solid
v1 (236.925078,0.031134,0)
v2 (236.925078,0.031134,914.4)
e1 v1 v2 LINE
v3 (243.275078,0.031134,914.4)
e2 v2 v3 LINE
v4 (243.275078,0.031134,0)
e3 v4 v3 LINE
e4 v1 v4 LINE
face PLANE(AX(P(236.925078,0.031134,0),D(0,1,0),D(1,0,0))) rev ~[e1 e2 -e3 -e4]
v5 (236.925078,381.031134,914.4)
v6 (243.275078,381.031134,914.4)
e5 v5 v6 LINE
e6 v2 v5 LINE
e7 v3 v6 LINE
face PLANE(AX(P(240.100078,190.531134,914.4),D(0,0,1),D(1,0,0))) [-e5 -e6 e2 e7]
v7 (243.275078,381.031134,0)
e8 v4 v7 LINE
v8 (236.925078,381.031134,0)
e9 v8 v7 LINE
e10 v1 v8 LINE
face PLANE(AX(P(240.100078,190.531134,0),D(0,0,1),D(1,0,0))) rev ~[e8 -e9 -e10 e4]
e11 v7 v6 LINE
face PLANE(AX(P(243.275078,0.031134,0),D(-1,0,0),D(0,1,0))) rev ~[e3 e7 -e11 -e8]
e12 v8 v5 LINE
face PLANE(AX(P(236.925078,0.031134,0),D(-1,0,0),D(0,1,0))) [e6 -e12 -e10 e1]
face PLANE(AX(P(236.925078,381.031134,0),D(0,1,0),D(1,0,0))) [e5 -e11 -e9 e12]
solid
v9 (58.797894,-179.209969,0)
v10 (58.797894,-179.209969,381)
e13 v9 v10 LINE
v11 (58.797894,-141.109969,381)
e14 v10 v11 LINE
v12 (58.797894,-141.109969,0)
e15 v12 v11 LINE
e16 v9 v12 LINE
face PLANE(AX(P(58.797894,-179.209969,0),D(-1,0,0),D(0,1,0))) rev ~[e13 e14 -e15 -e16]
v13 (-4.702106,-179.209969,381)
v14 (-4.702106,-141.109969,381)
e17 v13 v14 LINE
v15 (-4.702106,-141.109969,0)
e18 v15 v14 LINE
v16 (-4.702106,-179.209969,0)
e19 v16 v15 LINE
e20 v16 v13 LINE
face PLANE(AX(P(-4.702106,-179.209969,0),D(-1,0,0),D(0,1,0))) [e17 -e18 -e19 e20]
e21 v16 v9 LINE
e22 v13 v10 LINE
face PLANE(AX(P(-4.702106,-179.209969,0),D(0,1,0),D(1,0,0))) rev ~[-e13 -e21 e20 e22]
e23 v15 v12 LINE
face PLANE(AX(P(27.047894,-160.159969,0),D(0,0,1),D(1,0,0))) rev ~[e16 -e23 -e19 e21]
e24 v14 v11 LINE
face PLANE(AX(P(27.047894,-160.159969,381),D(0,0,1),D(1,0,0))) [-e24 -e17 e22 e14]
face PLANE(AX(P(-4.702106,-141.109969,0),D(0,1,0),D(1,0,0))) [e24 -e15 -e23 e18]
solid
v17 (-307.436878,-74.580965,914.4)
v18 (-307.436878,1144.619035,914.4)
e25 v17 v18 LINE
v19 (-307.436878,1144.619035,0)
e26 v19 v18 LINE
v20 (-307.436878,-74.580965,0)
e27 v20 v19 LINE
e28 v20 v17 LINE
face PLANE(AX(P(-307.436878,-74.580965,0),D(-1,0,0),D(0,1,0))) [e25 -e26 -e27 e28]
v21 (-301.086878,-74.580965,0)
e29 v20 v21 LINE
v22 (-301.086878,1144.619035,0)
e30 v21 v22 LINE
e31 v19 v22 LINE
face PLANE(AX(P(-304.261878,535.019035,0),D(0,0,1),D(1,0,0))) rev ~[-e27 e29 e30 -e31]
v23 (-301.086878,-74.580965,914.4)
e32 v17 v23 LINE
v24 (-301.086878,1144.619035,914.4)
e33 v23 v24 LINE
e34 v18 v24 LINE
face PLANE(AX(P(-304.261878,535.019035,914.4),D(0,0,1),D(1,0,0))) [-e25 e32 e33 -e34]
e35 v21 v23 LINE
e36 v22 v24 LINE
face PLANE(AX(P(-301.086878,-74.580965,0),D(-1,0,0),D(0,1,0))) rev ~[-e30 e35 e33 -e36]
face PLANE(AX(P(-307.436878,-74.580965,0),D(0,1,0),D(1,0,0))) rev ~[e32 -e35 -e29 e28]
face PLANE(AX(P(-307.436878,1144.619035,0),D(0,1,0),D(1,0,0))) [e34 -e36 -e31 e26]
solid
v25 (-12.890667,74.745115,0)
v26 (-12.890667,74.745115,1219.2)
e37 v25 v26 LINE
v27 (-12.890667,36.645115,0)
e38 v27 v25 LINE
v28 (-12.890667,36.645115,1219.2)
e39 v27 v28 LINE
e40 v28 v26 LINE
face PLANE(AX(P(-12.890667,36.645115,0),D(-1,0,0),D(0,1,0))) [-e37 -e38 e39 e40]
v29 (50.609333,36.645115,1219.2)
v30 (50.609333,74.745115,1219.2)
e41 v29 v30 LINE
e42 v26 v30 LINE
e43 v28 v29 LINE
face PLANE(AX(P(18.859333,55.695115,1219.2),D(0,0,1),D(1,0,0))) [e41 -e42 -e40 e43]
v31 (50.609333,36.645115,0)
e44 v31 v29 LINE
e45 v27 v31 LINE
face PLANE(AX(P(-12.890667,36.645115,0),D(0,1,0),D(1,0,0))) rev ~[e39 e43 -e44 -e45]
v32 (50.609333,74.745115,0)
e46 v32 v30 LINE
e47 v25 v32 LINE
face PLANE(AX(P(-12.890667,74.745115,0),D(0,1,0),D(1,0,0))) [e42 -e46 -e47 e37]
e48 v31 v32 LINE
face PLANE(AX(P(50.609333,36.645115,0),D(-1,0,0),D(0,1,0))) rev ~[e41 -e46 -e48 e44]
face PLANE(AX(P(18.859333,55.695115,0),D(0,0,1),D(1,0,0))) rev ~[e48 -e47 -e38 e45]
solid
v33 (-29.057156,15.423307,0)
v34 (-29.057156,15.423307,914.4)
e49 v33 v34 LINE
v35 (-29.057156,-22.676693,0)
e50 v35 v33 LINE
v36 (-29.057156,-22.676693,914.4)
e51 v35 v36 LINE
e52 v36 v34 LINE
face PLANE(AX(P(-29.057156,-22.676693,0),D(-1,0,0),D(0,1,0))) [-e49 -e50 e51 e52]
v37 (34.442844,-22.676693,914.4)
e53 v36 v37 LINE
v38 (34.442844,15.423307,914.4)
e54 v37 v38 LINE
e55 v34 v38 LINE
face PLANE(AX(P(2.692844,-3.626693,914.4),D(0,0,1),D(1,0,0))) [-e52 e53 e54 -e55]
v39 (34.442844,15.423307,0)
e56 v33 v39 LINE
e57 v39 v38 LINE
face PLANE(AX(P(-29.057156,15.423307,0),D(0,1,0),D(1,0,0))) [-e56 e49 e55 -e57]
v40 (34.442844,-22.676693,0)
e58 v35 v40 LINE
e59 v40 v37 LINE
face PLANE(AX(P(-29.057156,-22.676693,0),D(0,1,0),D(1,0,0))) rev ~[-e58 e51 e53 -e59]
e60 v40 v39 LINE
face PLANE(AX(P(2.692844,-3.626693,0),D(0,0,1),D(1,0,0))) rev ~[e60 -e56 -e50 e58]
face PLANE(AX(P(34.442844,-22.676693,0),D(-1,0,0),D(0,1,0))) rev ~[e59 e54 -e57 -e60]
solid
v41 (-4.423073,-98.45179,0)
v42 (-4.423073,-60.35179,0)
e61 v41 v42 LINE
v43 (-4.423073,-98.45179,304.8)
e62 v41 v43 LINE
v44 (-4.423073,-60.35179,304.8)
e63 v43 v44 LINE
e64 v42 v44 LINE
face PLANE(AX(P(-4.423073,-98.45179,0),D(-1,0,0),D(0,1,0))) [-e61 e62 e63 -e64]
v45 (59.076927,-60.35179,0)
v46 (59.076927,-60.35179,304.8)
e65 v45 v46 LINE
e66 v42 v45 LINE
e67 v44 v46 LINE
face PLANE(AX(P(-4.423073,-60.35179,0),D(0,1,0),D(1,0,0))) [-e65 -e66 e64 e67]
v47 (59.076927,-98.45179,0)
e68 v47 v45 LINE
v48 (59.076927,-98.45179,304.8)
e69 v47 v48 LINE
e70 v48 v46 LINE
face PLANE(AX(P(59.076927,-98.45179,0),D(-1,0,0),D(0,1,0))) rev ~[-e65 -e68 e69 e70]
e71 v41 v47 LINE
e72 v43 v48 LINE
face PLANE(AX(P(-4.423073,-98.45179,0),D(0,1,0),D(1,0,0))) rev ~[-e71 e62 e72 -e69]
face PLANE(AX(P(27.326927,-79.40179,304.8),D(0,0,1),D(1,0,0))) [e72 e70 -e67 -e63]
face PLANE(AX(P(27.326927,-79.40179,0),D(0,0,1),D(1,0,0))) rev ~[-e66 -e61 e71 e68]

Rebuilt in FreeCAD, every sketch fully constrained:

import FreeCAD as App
import Part
import Sketcher
Q = App.Units.Quantity

doc = App.newDocument("Part")
body = doc.addObject("PartDesign::Body", "Body")

sketch1 = body.newObject("Sketcher::SketchObject", "Sketch")
sketch1.AttachmentSupport = (doc.getObject("XY_Plane"), [""])
sketch1.MapMode = "FlatFace"
sketch1.addGeometry(Part.LineSegment(App.Vector(-29, 15, 0), App.Vector(-29, -23, 0)), False)
sketch1.addGeometry(Part.LineSegment(App.Vector(-29, -23, 0), App.Vector(34, -23, 0)), False)
sketch1.addGeometry(Part.LineSegment(App.Vector(34, -23, 0), App.Vector(34, 15, 0)), False)
sketch1.addGeometry(Part.LineSegment(App.Vector(34, 15, 0), App.Vector(-29, 15, 0)), False)
sketch1.addConstraint(Sketcher.Constraint("Coincident", 0, 2, 1, 1))
sketch1.addConstraint(Sketcher.Constraint("Coincident", 1, 2, 2, 1))
sketch1.addConstraint(Sketcher.Constraint("Coincident", 2, 2, 3, 1))
sketch1.addConstraint(Sketcher.Constraint("Coincident", 3, 2, 0, 1))
sketch1.addConstraint(Sketcher.Constraint("Vertical", 0))
sketch1.addConstraint(Sketcher.Constraint("Horizontal", 1))
sketch1.addConstraint(Sketcher.Constraint("Vertical", 2))
sketch1.addConstraint(Sketcher.Constraint("Horizontal", 3))
sketch1.addConstraint(Sketcher.Constraint("DistanceX", 1, 1, 1, 2, Q("2.5 in")))
sketch1.addConstraint(Sketcher.Constraint("DistanceY", 0, 2, 0, 1, Q("1.5 in")))
sketch1.addConstraint(Sketcher.Constraint("DistanceX", 0, 2, -1, 1, Q("29.057156 mm")))
sketch1.addConstraint(Sketcher.Constraint("DistanceY", 0, 2, -1, 1, Q("22.676693 mm")))
pad1 = body.newObject("PartDesign::Pad", "Pad")
pad1.Profile = sketch1
pad1.Length = Q("36 in")
body2 = doc.addObject("PartDesign::Body", "Body001")

sketch2 = body2.newObject("Sketcher::SketchObject", "Sketch001")
sketch2.AttachmentSupport = (doc.getObject("XY_Plane001"), [""])
sketch2.MapMode = "FlatFace"
sketch2.addGeometry(Part.LineSegment(App.Vector(-13, 75, 0), App.Vector(-13, 37, 0)), False)
sketch2.addGeometry(Part.LineSegment(App.Vector(-13, 37, 0), App.Vector(51, 37, 0)), False)
sketch2.addGeometry(Part.LineSegment(App.Vector(51, 37, 0), App.Vector(51, 75, 0)), False)
sketch2.addGeometry(Part.LineSegment(App.Vector(51, 75, 0), App.Vector(-13, 75, 0)), False)
sketch2.addConstraint(Sketcher.Constraint("Coincident", 0, 2, 1, 1))
sketch2.addConstraint(Sketcher.Constraint("Coincident", 1, 2, 2, 1))
sketch2.addConstraint(Sketcher.Constraint("Coincident", 2, 2, 3, 1))
sketch2.addConstraint(Sketcher.Constraint("Coincident", 3, 2, 0, 1))
sketch2.addConstraint(Sketcher.Constraint("Vertical", 0))
sketch2.addConstraint(Sketcher.Constraint("Horizontal", 1))
sketch2.addConstraint(Sketcher.Constraint("Vertical", 2))
sketch2.addConstraint(Sketcher.Constraint("Horizontal", 3))
sketch2.addConstraint(Sketcher.Constraint("DistanceX", 1, 1, 1, 2, Q("2.5 in")))
sketch2.addConstraint(Sketcher.Constraint("DistanceY", 0, 2, 0, 1, Q("1.5 in")))
sketch2.addConstraint(Sketcher.Constraint("DistanceX", 0, 2, -1, 1, Q("12.890667 mm")))
sketch2.addConstraint(Sketcher.Constraint("DistanceY", -1, 1, 0, 2, Q("36.645115 mm")))
pad2 = body2.newObject("PartDesign::Pad", "Pad001")
pad2.Profile = sketch2
pad2.Length = Q("48 in")
body3 = doc.addObject("PartDesign::Body", "Body002")

sketch3 = body3.newObject("Sketcher::SketchObject", "Sketch002")
sketch3.AttachmentSupport = (doc.getObject("XY_Plane002"), [""])
sketch3.MapMode = "FlatFace"
sketch3.addGeometry(Part.LineSegment(App.Vector(-4, -60, 0), App.Vector(-4, -98, 0)), False)
sketch3.addGeometry(Part.LineSegment(App.Vector(-4, -98, 0), App.Vector(59, -98, 0)), False)
sketch3.addGeometry(Part.LineSegment(App.Vector(59, -98, 0), App.Vector(59, -60, 0)), False)
sketch3.addGeometry(Part.LineSegment(App.Vector(59, -60, 0), App.Vector(-4, -60, 0)), False)
sketch3.addConstraint(Sketcher.Constraint("Coincident", 0, 2, 1, 1))
sketch3.addConstraint(Sketcher.Constraint("Coincident", 1, 2, 2, 1))
sketch3.addConstraint(Sketcher.Constraint("Coincident", 2, 2, 3, 1))
sketch3.addConstraint(Sketcher.Constraint("Coincident", 3, 2, 0, 1))
sketch3.addConstraint(Sketcher.Constraint("Vertical", 0))
sketch3.addConstraint(Sketcher.Constraint("Horizontal", 1))
sketch3.addConstraint(Sketcher.Constraint("Vertical", 2))
sketch3.addConstraint(Sketcher.Constraint("Horizontal", 3))
sketch3.addConstraint(Sketcher.Constraint("DistanceX", 1, 1, 1, 2, Q("2.5 in")))
sketch3.addConstraint(Sketcher.Constraint("DistanceY", 0, 2, 0, 1, Q("1.5 in")))
sketch3.addConstraint(Sketcher.Constraint("DistanceY", 0, 2, -1, 1, Q("98.45179 mm")))
sketch3.addConstraint(Sketcher.Constraint("DistanceX", 0, 2, -1, 1, Q("4.423073 mm")))
pad3 = body3.newObject("PartDesign::Pad", "Pad002")
pad3.Profile = sketch3
pad3.Length = Q("12 in")
body4 = doc.addObject("PartDesign::Body", "Body003")

sketch4 = body4.newObject("Sketcher::SketchObject", "Sketch003")
sketch4.AttachmentSupport = (doc.getObject("XY_Plane003"), [""])
sketch4.MapMode = "FlatFace"
sketch4.addGeometry(Part.LineSegment(App.Vector(-5, -141, 0), App.Vector(-5, -179, 0)), False)
sketch4.addGeometry(Part.LineSegment(App.Vector(-5, -179, 0), App.Vector(59, -179, 0)), False)
sketch4.addGeometry(Part.LineSegment(App.Vector(59, -179, 0), App.Vector(59, -141, 0)), False)
sketch4.addGeometry(Part.LineSegment(App.Vector(59, -141, 0), App.Vector(-5, -141, 0)), False)
sketch4.addConstraint(Sketcher.Constraint("Coincident", 0, 2, 1, 1))
sketch4.addConstraint(Sketcher.Constraint("Coincident", 1, 2, 2, 1))
sketch4.addConstraint(Sketcher.Constraint("Coincident", 2, 2, 3, 1))
sketch4.addConstraint(Sketcher.Constraint("Coincident", 3, 2, 0, 1))
sketch4.addConstraint(Sketcher.Constraint("Vertical", 0))
sketch4.addConstraint(Sketcher.Constraint("Horizontal", 1))
sketch4.addConstraint(Sketcher.Constraint("Vertical", 2))
sketch4.addConstraint(Sketcher.Constraint("Horizontal", 3))
sketch4.addConstraint(Sketcher.Constraint("DistanceX", 1, 1, 1, 2, Q("2.5 in")))
sketch4.addConstraint(Sketcher.Constraint("DistanceY", 0, 2, 0, 1, Q("1.5 in")))
sketch4.addConstraint(Sketcher.Constraint("DistanceY", 0, 2, -1, 1, Q("179.209969 mm")))
sketch4.addConstraint(Sketcher.Constraint("DistanceX", 0, 2, -1, 1, Q("4.702106 mm")))
pad4 = body4.newObject("PartDesign::Pad", "Pad003")
pad4.Profile = sketch4
pad4.Length = Q("15 in")
body5 = doc.addObject("PartDesign::Body", "Body004")

sketch5 = body5.newObject("Sketcher::SketchObject", "Sketch004")
sketch5.AttachmentSupport = (doc.getObject("XY_Plane004"), [""])
sketch5.MapMode = "FlatFace"
sketch5.addGeometry(Part.LineSegment(App.Vector(-307, 1145, 0), App.Vector(-307, -75, 0)), False)
sketch5.addGeometry(Part.LineSegment(App.Vector(-307, -75, 0), App.Vector(-301, -75, 0)), False)
sketch5.addGeometry(Part.LineSegment(App.Vector(-301, -75, 0), App.Vector(-301, 1145, 0)), False)
sketch5.addGeometry(Part.LineSegment(App.Vector(-301, 1145, 0), App.Vector(-307, 1145, 0)), False)
sketch5.addConstraint(Sketcher.Constraint("Coincident", 0, 2, 1, 1))
sketch5.addConstraint(Sketcher.Constraint("Coincident", 1, 2, 2, 1))
sketch5.addConstraint(Sketcher.Constraint("Coincident", 2, 2, 3, 1))
sketch5.addConstraint(Sketcher.Constraint("Coincident", 3, 2, 0, 1))
sketch5.addConstraint(Sketcher.Constraint("Vertical", 0))
sketch5.addConstraint(Sketcher.Constraint("Horizontal", 1))
sketch5.addConstraint(Sketcher.Constraint("Vertical", 2))
sketch5.addConstraint(Sketcher.Constraint("Horizontal", 3))
sketch5.addConstraint(Sketcher.Constraint("DistanceY", 0, 2, 0, 1, Q("48 in")))
sketch5.addConstraint(Sketcher.Constraint("DistanceX", 1, 1, 1, 2, Q("0.25 in")))
sketch5.addConstraint(Sketcher.Constraint("DistanceX", 0, 2, -1, 1, Q("307.436878 mm")))
sketch5.addConstraint(Sketcher.Constraint("DistanceY", 0, 2, -1, 1, Q("74.580965 mm")))
pad5 = body5.newObject("PartDesign::Pad", "Pad004")
pad5.Profile = sketch5
pad5.Length = Q("36 in")
body6 = doc.addObject("PartDesign::Body", "Body005")

sketch6 = body6.newObject("Sketcher::SketchObject", "Sketch005")
sketch6.AttachmentSupport = (doc.getObject("XY_Plane005"), [""])
sketch6.MapMode = "FlatFace"
sketch6.addGeometry(Part.LineSegment(App.Vector(237, 381, 0), App.Vector(237, 0, 0)), False)
sketch6.addGeometry(Part.LineSegment(App.Vector(237, 0, 0), App.Vector(243, 0, 0)), False)
sketch6.addGeometry(Part.LineSegment(App.Vector(243, 0, 0), App.Vector(243, 381, 0)), False)
sketch6.addGeometry(Part.LineSegment(App.Vector(243, 381, 0), App.Vector(237, 381, 0)), False)
sketch6.addConstraint(Sketcher.Constraint("Coincident", 0, 2, 1, 1))
sketch6.addConstraint(Sketcher.Constraint("Coincident", 1, 2, 2, 1))
sketch6.addConstraint(Sketcher.Constraint("Coincident", 2, 2, 3, 1))
sketch6.addConstraint(Sketcher.Constraint("Coincident", 3, 2, 0, 1))
sketch6.addConstraint(Sketcher.Constraint("Vertical", 0))
sketch6.addConstraint(Sketcher.Constraint("Horizontal", 1))
sketch6.addConstraint(Sketcher.Constraint("Vertical", 2))
sketch6.addConstraint(Sketcher.Constraint("Horizontal", 3))
sketch6.addConstraint(Sketcher.Constraint("DistanceY", 0, 2, 0, 1, Q("15 in")))
sketch6.addConstraint(Sketcher.Constraint("DistanceX", 1, 1, 1, 2, Q("0.25 in")))
sketch6.addConstraint(Sketcher.Constraint("DistanceX", -1, 1, 0, 2, Q("236.925078 mm")))
sketch6.addConstraint(Sketcher.Constraint("DistanceY", -1, 1, 0, 2, Q("0.031134 mm")))
pad6 = body6.newObject("PartDesign::Pad", "Pad005")
pad6.Profile = sketch6
pad6.Length = Q("36 in")

doc.recompute()
